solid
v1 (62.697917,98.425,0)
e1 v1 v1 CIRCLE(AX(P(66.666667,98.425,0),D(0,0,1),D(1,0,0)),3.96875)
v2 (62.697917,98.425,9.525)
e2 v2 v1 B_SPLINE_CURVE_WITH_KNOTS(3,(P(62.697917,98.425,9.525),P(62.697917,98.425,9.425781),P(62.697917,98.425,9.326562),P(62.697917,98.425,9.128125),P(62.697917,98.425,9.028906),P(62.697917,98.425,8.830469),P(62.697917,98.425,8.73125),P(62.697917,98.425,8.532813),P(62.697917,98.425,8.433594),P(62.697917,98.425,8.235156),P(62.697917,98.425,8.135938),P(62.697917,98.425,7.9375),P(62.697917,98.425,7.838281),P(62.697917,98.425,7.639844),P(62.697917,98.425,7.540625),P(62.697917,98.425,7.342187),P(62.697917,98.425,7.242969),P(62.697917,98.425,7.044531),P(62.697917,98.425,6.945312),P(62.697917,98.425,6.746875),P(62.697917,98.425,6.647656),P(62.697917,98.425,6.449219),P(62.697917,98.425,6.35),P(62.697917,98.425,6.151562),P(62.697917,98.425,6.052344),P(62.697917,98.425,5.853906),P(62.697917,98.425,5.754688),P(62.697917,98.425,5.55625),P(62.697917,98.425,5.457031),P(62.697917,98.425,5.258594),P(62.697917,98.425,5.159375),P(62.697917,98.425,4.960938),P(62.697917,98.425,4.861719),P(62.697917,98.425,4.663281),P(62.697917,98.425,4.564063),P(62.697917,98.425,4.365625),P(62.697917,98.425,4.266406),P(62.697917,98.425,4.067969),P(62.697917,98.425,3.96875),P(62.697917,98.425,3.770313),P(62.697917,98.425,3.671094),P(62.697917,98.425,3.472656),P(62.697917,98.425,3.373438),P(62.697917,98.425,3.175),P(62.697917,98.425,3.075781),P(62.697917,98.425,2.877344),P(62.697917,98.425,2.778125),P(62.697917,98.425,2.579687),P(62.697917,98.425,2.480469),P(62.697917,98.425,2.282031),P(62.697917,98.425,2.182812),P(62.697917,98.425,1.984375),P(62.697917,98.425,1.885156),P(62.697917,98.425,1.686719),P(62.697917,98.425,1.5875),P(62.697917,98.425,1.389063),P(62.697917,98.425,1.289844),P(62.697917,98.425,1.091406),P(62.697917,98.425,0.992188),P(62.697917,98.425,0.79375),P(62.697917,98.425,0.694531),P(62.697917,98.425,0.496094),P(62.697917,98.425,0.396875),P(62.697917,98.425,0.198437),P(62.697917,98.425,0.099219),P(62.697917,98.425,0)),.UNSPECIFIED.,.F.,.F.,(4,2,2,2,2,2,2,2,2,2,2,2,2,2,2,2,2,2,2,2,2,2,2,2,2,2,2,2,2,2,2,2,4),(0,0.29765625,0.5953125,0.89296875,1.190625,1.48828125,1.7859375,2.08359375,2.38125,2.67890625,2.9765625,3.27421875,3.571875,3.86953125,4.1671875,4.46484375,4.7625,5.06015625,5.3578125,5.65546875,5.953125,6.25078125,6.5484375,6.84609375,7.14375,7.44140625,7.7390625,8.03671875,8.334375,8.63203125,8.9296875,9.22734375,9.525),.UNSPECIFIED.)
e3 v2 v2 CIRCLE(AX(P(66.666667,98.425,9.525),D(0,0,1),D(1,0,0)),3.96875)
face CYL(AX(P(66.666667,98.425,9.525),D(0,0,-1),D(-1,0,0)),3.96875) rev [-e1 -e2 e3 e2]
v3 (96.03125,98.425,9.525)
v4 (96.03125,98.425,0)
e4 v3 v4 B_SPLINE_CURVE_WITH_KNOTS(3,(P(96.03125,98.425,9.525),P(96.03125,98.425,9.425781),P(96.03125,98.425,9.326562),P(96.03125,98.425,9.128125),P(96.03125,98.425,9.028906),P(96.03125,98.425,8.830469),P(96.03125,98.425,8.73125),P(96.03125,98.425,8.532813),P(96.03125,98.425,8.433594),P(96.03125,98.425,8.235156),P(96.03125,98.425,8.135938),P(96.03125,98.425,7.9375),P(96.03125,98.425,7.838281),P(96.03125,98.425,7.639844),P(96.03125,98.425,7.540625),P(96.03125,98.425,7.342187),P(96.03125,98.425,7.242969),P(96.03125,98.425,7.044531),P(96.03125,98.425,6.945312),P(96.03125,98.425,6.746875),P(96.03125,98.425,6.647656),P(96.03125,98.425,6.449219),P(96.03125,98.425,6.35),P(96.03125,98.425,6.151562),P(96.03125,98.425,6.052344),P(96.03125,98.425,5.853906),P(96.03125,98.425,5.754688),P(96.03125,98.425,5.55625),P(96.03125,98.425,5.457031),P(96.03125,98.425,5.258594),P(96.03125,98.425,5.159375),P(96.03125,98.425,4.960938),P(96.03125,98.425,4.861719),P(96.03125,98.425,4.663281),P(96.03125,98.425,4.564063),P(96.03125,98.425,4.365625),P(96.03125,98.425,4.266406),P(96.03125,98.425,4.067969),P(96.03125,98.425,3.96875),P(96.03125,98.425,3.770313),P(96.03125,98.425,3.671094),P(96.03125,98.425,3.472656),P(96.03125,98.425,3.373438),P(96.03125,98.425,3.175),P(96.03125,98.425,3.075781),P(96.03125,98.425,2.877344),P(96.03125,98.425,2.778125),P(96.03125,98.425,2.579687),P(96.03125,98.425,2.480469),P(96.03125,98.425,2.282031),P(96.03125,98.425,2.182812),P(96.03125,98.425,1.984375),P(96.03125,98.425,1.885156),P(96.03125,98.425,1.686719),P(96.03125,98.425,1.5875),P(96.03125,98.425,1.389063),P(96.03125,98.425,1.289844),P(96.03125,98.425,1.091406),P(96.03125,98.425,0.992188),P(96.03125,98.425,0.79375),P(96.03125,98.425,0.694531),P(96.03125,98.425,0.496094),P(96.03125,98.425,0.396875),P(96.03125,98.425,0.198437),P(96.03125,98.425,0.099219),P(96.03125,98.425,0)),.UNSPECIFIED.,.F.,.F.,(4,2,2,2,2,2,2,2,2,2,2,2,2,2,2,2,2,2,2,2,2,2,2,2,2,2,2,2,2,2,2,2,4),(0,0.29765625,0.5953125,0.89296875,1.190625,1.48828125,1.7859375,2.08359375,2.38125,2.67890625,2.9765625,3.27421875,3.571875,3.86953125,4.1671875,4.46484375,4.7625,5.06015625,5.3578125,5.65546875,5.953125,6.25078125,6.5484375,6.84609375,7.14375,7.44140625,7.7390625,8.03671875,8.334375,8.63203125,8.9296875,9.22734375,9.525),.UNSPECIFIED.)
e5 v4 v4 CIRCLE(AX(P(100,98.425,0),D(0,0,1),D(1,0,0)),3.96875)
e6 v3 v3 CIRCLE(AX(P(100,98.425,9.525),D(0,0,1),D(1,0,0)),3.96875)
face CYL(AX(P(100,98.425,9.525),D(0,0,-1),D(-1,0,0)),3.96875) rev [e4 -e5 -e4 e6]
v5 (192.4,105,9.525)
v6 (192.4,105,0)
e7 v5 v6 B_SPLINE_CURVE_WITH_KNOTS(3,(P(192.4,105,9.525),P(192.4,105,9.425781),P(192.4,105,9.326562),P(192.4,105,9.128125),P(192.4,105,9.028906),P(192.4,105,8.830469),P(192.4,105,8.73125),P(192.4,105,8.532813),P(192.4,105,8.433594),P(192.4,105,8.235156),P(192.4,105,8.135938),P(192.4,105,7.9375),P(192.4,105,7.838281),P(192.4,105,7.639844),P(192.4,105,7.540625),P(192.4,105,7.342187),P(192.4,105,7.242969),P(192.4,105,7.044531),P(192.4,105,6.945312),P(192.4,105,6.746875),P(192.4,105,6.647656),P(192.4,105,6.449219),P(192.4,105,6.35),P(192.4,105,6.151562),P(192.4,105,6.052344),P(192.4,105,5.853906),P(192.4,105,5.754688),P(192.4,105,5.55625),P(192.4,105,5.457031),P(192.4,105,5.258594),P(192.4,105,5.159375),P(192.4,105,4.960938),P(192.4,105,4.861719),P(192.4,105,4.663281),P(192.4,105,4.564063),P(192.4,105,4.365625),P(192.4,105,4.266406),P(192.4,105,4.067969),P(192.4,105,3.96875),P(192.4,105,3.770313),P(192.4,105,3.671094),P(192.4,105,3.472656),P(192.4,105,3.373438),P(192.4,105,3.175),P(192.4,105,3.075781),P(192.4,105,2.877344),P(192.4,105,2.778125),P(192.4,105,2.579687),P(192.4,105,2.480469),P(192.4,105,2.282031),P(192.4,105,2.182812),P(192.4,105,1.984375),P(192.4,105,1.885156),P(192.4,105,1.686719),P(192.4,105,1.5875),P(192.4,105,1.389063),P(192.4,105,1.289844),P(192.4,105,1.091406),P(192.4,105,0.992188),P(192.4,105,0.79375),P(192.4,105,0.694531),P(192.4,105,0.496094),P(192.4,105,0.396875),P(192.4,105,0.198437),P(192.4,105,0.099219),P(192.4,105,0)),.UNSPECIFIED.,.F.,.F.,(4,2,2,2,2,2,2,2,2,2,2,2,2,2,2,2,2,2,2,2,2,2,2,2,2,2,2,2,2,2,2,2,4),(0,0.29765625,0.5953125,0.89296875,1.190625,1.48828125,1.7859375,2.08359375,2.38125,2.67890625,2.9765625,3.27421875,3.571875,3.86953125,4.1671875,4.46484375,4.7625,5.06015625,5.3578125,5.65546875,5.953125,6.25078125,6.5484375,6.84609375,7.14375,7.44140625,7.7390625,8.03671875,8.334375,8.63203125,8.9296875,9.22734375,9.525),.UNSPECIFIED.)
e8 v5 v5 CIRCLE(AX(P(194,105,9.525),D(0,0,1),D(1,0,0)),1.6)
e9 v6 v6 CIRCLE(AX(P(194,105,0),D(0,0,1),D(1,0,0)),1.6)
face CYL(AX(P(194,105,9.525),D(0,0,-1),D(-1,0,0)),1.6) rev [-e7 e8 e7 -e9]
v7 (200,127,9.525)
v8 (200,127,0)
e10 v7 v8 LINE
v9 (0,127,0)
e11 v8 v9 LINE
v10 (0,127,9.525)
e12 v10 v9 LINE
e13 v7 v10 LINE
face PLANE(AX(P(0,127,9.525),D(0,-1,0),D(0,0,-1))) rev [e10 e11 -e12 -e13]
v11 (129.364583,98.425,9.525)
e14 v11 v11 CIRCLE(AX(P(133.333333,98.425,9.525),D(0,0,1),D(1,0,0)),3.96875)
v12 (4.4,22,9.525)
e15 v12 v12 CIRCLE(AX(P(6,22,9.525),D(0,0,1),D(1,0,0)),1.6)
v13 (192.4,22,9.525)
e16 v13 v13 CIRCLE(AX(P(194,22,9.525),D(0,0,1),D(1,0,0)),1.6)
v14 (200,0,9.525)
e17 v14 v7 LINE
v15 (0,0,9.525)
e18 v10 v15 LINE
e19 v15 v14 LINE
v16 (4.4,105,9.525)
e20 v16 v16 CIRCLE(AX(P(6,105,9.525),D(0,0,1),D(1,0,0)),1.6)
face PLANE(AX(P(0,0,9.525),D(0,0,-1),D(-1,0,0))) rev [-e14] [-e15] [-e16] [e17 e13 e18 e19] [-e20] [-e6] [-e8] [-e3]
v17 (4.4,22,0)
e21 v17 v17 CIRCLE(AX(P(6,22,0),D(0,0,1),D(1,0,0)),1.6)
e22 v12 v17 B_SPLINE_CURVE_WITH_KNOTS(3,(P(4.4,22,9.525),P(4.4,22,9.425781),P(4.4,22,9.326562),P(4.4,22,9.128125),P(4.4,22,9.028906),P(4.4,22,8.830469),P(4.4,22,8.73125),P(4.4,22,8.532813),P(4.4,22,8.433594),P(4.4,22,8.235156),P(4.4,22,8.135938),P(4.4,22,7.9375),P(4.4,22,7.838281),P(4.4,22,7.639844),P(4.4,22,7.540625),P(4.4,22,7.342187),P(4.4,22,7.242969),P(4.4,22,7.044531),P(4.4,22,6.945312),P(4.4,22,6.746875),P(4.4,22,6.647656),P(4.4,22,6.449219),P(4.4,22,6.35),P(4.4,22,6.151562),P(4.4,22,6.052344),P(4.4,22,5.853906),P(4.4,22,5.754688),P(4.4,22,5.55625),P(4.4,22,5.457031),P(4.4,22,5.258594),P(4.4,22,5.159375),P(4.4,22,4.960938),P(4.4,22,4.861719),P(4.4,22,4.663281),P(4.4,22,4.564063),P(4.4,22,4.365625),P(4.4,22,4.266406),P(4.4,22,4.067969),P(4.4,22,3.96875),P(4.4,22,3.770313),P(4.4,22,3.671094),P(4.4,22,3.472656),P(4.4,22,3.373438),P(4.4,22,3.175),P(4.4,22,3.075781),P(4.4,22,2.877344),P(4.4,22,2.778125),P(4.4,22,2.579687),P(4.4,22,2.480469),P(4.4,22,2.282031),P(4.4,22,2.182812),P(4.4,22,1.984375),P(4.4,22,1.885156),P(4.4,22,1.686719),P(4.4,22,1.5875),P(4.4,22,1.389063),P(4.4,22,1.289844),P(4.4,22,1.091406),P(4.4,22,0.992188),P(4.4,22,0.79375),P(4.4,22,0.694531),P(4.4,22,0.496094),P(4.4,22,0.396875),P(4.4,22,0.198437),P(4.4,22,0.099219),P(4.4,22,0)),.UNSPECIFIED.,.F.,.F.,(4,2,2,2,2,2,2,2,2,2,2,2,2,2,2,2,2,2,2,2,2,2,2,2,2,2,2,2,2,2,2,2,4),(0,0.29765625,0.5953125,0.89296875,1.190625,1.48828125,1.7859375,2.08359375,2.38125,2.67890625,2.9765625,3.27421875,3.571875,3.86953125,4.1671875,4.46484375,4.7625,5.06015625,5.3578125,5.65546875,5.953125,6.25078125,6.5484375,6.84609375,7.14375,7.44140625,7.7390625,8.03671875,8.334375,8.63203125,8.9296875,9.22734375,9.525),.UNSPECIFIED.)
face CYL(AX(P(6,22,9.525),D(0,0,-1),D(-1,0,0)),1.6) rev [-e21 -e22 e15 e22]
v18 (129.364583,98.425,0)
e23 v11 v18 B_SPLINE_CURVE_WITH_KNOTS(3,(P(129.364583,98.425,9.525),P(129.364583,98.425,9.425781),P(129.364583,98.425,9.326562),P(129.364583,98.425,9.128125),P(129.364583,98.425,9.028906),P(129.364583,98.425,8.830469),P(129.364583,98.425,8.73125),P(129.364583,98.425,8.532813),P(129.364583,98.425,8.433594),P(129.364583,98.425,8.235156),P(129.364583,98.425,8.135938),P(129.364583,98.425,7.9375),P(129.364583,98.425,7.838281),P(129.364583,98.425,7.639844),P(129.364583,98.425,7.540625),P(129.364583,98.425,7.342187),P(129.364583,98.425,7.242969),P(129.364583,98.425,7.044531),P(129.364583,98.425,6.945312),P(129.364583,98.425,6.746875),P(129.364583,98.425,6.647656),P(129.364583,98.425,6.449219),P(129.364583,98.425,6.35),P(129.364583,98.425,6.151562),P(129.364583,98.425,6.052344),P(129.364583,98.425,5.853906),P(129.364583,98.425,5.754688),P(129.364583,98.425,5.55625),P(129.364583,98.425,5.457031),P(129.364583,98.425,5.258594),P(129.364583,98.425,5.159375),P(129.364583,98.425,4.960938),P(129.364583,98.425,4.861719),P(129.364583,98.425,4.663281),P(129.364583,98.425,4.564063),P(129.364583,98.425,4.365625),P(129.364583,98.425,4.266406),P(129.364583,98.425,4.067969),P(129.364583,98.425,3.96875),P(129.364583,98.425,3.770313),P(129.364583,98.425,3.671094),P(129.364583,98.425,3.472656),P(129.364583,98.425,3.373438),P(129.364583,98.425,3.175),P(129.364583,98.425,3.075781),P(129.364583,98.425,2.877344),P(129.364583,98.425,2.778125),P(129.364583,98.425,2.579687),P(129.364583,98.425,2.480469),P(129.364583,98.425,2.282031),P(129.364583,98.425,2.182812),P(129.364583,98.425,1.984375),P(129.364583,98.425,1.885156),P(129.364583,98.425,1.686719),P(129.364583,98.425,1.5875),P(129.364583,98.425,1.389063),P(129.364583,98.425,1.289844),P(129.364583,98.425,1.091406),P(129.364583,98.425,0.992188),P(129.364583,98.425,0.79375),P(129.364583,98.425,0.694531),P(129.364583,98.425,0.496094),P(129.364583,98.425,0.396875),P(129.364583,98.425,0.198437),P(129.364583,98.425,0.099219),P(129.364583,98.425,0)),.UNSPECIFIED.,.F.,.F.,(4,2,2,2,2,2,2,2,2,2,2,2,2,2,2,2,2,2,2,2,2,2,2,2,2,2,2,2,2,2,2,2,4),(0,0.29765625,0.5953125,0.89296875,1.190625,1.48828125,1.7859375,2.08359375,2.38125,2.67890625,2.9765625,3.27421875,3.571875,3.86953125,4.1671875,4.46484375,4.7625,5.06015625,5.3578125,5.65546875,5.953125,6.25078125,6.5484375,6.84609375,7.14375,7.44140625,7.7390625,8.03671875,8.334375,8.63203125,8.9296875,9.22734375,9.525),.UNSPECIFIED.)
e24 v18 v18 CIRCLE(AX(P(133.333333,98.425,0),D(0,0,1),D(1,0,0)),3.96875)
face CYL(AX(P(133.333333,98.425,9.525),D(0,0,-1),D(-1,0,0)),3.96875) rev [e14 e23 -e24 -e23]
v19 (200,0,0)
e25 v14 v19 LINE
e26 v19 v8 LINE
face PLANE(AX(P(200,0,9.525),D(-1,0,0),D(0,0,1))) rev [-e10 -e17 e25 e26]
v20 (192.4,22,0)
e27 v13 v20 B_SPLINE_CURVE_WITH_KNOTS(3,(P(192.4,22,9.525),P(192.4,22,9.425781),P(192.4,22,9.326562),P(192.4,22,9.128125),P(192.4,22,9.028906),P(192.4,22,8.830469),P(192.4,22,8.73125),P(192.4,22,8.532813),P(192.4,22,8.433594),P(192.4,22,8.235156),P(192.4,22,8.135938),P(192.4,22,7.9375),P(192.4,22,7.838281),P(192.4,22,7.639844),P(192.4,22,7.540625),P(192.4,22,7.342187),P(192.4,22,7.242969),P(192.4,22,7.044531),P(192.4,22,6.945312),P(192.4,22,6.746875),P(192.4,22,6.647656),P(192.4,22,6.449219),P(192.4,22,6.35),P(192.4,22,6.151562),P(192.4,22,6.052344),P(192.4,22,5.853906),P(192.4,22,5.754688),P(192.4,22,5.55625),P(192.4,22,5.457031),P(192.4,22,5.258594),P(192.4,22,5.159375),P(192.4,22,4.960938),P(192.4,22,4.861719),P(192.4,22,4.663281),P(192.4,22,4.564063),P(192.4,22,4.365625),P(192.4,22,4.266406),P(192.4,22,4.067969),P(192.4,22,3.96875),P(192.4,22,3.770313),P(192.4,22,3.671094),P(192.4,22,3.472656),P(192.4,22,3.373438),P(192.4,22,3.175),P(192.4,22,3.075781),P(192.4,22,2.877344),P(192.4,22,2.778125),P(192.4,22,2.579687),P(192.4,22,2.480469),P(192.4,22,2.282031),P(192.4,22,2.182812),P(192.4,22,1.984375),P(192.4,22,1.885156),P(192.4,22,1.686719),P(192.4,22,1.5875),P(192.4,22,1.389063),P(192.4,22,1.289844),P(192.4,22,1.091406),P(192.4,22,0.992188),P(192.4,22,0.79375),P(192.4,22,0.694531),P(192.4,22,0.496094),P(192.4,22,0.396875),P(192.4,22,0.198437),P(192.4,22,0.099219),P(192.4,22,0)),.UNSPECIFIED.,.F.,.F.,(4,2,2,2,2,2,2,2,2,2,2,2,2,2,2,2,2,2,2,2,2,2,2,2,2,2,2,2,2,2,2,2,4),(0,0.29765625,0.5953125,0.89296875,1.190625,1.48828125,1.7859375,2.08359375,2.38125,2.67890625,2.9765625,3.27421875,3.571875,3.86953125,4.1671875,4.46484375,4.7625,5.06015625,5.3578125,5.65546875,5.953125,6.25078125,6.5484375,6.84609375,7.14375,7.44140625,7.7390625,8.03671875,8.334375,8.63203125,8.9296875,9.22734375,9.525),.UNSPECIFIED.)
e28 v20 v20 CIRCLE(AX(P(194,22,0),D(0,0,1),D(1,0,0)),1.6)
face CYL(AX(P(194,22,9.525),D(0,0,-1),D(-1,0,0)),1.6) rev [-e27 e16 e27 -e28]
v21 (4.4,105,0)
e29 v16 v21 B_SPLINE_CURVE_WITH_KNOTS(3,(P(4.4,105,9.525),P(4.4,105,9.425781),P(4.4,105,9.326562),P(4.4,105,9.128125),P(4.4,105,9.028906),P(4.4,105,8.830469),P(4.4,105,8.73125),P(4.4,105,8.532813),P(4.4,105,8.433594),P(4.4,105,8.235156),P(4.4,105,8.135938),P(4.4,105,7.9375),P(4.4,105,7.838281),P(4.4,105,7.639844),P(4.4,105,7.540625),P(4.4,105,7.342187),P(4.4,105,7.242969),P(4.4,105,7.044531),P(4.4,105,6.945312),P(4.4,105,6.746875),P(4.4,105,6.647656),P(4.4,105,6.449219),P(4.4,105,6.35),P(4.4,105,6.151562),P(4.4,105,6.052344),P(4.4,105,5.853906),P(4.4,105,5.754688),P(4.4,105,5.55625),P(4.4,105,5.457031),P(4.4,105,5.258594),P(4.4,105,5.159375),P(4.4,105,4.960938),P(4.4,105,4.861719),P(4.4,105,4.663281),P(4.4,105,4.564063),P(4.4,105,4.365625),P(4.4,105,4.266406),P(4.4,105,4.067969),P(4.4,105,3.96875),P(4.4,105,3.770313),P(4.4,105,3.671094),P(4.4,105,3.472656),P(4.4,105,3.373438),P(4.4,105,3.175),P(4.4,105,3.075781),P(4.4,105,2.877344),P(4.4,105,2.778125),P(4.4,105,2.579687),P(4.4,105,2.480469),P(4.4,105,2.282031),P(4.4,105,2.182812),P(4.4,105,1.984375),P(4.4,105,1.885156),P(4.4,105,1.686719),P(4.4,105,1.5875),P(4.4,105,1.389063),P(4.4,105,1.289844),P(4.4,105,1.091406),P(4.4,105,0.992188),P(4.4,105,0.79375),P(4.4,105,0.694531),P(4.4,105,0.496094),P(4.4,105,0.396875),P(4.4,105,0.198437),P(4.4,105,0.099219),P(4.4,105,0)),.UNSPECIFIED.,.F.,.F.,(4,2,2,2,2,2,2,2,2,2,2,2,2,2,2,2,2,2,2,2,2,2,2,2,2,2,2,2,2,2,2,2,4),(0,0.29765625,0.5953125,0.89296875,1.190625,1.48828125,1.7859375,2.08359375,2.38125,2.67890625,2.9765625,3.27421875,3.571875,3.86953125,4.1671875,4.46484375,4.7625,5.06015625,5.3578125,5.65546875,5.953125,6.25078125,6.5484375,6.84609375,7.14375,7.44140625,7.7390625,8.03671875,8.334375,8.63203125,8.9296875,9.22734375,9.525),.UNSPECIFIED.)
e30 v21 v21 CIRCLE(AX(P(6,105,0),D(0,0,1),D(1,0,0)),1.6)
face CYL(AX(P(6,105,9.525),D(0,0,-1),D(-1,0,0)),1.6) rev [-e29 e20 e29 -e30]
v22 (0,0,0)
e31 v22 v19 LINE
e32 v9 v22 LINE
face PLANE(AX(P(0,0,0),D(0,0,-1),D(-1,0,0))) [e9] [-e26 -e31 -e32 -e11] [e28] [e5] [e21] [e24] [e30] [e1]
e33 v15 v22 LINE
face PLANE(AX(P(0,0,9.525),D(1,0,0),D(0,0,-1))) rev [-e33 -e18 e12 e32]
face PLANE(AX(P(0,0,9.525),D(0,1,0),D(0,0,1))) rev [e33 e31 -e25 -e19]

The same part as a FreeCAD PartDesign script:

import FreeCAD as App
import Part
import Sketcher
Q = App.Units.Quantity

doc = App.newDocument("Part")
params = doc.addObject("Spreadsheet::Sheet", "Params")
for row, (alias, value) in enumerate([
    ("sketch1_height", "5 in"),
    ("sketch1_diameter", "0.3125 in"),
    ("pad1_length", "0.375 in"),
], start=1):
    params.set(f"A{row}", alias)
    params.set(f"B{row}", "=" + value)
    params.setAlias(f"B{row}", alias)

body = doc.addObject("PartDesign::Body", "Body")

sketch1 = body.newObject("Sketcher::SketchObject", "Sketch")
sketch1.AttachmentSupport = (doc.getObject("XY_Plane"), [""])
sketch1.MapMode = "FlatFace"
sketch1.addGeometry(Part.LineSegment(App.Vector(0, 127, 0), App.Vector(0, 0, 0)), False)
sketch1.addGeometry(Part.LineSegment(App.Vector(0, 0, 0), App.Vector(200, 0, 0)), False)
sketch1.addGeometry(Part.LineSegment(App.Vector(200, 0, 0), App.Vector(200, 127, 0)), False)
sketch1.addGeometry(Part.LineSegment(App.Vector(200, 127, 0), App.Vector(0, 127, 0)), False)
sketch1.addGeometry(Part.Circle(App.Vector(6, 22, 0), App.Vector(0, 0, 1), 1.6), False)
sketch1.addGeometry(Part.Circle(App.Vector(194, 22, 0), App.Vector(0, 0, 1), 1.6), False)
sketch1.addGeometry(Part.Circle(App.Vector(6, 105, 0), App.Vector(0, 0, 1), 1.6), False)
sketch1.addGeometry(Part.Circle(App.Vector(66.7, 98.4, 0), App.Vector(0, 0, 1), 4), False)
sketch1.addGeometry(Part.Circle(App.Vector(100, 98.4, 0), App.Vector(0, 0, 1), 4), False)
sketch1.addGeometry(Part.Circle(App.Vector(133.3, 98.4, 0), App.Vector(0, 0, 1), 4), False)
sketch1.addGeometry(Part.Circle(App.Vector(194, 105, 0), App.Vector(0, 0, 1), 1.6), False)
sketch1.addConstraint(Sketcher.Constraint("Coincident", 0, 2, 1, 1))
sketch1.addConstraint(Sketcher.Constraint("Coincident", 1, 2, 2, 1))
sketch1.addConstraint(Sketcher.Constraint("Coincident", 2, 2, 3, 1))
sketch1.addConstraint(Sketcher.Constraint("Coincident", 3, 2, 0, 1))
sketch1.addConstraint(Sketcher.Constraint("Vertical", 0))
sketch1.addConstraint(Sketcher.Constraint("Horizontal", 1))
sketch1.addConstraint(Sketcher.Constraint("Vertical", 2))
sketch1.addConstraint(Sketcher.Constraint("Horizontal", 3))
sketch1.addConstraint(Sketcher.Constraint("Coincident", 0, 2, -1, 1))
sketch1.addConstraint(Sketcher.Constraint("Equal", 4, 5))
sketch1.addConstraint(Sketcher.Constraint("Equal", 5, 6))
sketch1.addConstraint(Sketcher.Constraint("Equal", 7, 8))
sketch1.addConstraint(Sketcher.Constraint("Equal", 8, 9))
sketch1.addConstraint(Sketcher.Constraint("Equal", 6, 10))
sketch1.addConstraint(Sketcher.Constraint("Horizontal", 4, 3, 5, 3))
sketch1.addConstraint(Sketcher.Constraint("Horizontal", 7, 3, 8, 3))
sketch1.addConstraint(Sketcher.Constraint("Horizontal", 8, 3, 9, 3))
sketch1.addConstraint(Sketcher.Constraint("Horizontal", 6, 3, 10, 3))
sketch1.addConstraint(Sketcher.Constraint("Vertical", 4, 3, 6, 3))
sketch1.addConstraint(Sketcher.Constraint("Vertical", 5, 3, 10, 3))
sketch1.addConstraint(Sketcher.Constraint("DistanceY", 0, 2, 0, 1, Q("5 in")))
sketch1.addConstraint(Sketcher.Constraint("Diameter", 7, Q("0.3125 in")))
sketch1.addConstraint(Sketcher.Constraint("Diameter", 4, 3.2))
sketch1.addConstraint(Sketcher.Constraint("DistanceY", -1, 1, 7, 3, Q("3.875 in")))
sketch1.addConstraint(Sketcher.Constraint("DistanceX", 1, 1, 1, 2, 200.0))
sketch1.addConstraint(Sketcher.Constraint("DistanceX", -1, 1, 4, 3, 6.0))
sketch1.addConstraint(Sketcher.Constraint("DistanceY", -1, 1, 4, 3, 22.0))
sketch1.addConstraint(Sketcher.Constraint("DistanceX", -1, 1, 5, 3, 194.0))
sketch1.addConstraint(Sketcher.Constraint("DistanceY", -1, 1, 6, 3, 105.0))
sketch1.addConstraint(Sketcher.Constraint("DistanceX", -1, 1, 8, 3, 100.0))
sketch1.addConstraint(Sketcher.Constraint("DistanceX", -1, 1, 7, 3, 66.666667))
sketch1.addConstraint(Sketcher.Constraint("DistanceX", -1, 1, 9, 3, 133.333333))
sketch1.setExpression("Constraints[20]", "Params.sketch1_height")
sketch1.setExpression("Constraints[21]", "Params.sketch1_diameter")
pad1 = body.newObject("PartDesign::Pad", "Pad")
pad1.Profile = sketch1
pad1.setExpression("Length", "Params.pad1_length")

doc.recompute()
